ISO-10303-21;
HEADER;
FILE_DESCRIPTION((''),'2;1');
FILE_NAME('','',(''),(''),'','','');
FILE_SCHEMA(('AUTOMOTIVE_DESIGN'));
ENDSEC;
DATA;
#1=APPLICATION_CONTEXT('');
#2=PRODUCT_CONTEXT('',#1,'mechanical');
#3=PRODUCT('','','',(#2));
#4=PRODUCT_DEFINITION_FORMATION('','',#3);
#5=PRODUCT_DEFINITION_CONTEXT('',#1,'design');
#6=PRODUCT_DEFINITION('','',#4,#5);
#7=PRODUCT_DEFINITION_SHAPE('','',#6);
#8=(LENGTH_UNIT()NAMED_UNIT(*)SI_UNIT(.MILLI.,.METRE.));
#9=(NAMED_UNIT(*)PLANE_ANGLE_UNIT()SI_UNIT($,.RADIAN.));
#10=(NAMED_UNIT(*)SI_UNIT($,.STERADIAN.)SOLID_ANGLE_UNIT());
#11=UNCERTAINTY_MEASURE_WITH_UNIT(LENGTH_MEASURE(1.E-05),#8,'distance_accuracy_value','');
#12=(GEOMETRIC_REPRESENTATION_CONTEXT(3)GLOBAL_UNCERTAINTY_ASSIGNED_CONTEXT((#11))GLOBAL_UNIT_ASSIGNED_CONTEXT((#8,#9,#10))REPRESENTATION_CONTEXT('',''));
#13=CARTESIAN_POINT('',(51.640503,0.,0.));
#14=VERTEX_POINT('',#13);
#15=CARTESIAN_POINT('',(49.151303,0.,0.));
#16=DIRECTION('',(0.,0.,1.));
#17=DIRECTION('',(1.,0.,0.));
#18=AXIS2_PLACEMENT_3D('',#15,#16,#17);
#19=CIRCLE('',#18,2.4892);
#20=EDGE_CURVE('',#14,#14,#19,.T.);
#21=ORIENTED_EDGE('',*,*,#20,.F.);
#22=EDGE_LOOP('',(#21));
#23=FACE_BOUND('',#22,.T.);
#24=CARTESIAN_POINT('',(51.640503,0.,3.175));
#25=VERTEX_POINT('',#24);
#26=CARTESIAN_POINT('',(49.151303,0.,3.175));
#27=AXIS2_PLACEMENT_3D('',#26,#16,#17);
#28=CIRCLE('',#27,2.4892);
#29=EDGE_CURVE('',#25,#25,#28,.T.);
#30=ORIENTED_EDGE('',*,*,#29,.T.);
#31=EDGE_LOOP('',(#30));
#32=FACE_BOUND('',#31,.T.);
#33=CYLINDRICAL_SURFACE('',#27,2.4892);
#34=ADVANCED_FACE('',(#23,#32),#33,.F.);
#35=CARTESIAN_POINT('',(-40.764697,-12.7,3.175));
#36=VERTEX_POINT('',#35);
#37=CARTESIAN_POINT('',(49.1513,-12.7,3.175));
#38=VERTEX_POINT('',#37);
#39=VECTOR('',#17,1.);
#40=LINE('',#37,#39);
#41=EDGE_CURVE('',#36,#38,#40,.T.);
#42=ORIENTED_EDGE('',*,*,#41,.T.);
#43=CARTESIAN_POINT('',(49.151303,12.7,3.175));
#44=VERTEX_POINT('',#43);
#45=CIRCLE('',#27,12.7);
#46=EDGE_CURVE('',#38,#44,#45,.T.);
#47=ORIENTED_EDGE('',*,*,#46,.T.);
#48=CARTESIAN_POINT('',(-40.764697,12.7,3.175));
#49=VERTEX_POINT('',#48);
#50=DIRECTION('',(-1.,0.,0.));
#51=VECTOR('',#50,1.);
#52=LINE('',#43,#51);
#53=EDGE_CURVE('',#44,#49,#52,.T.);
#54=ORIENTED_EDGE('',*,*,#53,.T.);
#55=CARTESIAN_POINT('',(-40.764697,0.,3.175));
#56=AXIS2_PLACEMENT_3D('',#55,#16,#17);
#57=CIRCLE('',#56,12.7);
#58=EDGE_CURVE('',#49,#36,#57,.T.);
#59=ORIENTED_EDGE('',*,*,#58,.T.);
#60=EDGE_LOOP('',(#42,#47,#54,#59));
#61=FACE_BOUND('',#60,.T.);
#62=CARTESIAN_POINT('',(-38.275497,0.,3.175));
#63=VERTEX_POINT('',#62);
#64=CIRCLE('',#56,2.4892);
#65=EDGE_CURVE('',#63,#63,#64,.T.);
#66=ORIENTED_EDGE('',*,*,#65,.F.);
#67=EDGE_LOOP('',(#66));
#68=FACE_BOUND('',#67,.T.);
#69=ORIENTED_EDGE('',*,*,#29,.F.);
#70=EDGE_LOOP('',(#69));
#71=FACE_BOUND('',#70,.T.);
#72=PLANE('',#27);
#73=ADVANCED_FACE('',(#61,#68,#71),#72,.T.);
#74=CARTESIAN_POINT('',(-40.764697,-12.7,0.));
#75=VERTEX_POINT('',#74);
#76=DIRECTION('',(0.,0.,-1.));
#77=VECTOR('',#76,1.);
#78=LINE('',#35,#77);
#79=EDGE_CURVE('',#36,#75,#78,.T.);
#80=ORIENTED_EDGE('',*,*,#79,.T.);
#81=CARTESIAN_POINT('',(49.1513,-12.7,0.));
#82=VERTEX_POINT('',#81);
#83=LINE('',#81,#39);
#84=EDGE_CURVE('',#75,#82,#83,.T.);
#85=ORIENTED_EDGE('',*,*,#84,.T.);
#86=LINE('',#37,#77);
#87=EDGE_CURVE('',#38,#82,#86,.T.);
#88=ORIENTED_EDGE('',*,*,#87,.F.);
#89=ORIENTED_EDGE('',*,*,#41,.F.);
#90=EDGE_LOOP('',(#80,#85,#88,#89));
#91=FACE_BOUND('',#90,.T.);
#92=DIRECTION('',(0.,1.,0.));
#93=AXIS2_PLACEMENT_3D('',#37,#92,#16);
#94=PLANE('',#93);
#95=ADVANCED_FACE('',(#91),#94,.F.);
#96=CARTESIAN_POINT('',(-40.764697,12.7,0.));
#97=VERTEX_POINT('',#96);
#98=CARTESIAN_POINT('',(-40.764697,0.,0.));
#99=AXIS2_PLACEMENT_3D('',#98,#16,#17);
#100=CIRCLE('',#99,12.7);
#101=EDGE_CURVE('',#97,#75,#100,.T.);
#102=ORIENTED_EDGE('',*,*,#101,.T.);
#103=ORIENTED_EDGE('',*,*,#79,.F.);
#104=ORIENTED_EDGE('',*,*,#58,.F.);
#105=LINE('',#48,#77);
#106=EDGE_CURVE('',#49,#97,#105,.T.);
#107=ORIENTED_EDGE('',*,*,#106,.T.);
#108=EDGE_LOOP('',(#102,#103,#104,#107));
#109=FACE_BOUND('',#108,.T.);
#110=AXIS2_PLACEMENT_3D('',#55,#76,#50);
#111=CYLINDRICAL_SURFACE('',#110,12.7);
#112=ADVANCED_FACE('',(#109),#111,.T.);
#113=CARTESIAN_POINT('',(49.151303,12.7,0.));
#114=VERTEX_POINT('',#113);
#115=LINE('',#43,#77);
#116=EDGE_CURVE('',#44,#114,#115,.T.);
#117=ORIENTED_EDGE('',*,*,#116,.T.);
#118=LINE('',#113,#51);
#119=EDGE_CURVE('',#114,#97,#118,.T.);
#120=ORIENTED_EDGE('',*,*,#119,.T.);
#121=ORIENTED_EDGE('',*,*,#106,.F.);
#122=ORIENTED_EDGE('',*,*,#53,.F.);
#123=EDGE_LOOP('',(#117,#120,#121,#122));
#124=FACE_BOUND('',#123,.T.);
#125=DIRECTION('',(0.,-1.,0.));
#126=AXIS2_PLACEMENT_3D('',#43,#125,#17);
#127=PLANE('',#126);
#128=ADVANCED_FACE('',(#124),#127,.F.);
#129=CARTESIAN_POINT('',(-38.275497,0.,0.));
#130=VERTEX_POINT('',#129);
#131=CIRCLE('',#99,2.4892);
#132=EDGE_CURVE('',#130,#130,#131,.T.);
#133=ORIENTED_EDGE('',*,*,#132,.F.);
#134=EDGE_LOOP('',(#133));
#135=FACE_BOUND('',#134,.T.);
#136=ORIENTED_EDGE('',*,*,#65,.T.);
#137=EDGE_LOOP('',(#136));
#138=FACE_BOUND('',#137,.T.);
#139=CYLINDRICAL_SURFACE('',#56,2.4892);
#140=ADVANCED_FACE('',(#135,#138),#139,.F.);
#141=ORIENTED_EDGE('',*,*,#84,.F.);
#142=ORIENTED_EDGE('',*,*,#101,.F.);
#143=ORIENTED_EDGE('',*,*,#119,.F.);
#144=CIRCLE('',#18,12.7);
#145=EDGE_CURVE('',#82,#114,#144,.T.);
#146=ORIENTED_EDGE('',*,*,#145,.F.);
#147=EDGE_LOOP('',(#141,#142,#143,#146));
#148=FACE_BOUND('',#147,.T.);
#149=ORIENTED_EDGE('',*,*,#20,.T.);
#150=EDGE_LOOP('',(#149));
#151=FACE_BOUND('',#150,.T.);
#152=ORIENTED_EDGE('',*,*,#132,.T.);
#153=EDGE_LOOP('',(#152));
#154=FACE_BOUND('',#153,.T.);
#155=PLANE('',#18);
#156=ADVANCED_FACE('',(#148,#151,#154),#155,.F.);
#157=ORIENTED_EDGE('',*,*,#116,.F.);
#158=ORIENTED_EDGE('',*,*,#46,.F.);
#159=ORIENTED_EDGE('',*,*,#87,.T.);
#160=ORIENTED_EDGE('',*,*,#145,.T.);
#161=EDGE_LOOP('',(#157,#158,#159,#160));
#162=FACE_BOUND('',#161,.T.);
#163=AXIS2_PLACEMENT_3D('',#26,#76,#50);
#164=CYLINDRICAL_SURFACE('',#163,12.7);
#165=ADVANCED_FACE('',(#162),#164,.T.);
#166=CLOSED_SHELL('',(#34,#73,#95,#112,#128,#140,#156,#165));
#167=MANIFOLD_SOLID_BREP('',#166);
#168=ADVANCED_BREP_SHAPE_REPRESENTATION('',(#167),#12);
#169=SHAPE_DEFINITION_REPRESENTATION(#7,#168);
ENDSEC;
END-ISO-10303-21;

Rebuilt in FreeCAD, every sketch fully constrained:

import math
import FreeCAD as App
import Part
import Sketcher

V = App.Vector
Q = App.Units.Quantity

doc = App.newDocument("Part")
body = doc.addObject("PartDesign::Body", "Body")

# Sketch on XY plane
sketch1 = body.newObject("Sketcher::SketchObject", "Sketch")
sketch1.AttachmentSupport = (doc.getObject("XY_Plane"), [""])
sketch1.MapMode = "FlatFace"
sketch1.addGeometry([
    Part.LineSegment(V(-41, -13, 0), V(49, -13, 0)),
    Part.ArcOfCircle(Part.Circle(V(49, 0, 0), V(0, 0, 1), 13), math.radians(-90), math.radians(90)),
    Part.LineSegment(V(49, 13, 0), V(-41, 13, 0)),
    Part.ArcOfCircle(Part.Circle(V(-41, 0, 0), V(0, 0, 1), 13), math.radians(90), math.radians(270)),
], False)
sketch1.addConstraint([
    Sketcher.Constraint("Tangent", 0, 2, 1, 1),
    Sketcher.Constraint("Tangent", 1, 2, 2, 1),
    Sketcher.Constraint("Tangent", 2, 2, 3, 1),
    Sketcher.Constraint("Tangent", 3, 2, 0, 1),
    Sketcher.Constraint("Horizontal", 0),
    Sketcher.Constraint("Horizontal", 2),
    Sketcher.Constraint("PointOnObject", 1, 3, -1),
    Sketcher.Constraint("Radius", 1, Q("0.5 in")),
    Sketcher.Constraint("DistanceX", 0, 1, 0, 2, Q("3.5399999 in")),
    Sketcher.Constraint("DistanceX", -1, 1, 0, 2, 49.1513),
])
pad1 = body.newObject("PartDesign::Pad", "Pad")
pad1.Profile = sketch1
pad1.Length = Q("0.125 in")

# Sketch on XY plane
sketch2 = body.newObject("Sketcher::SketchObject", "Sketch001")
sketch2.AttachmentSupport = (doc.getObject("XY_Plane"), [""])
sketch2.MapMode = "FlatFace"
sketch2.AttachmentOffset = App.Placement(V(0, 0, 0.125 * 25.4), App.Rotation())
sketch2.addGeometry([
    Part.Circle(V(-40.8, 0, 0), V(0, 0, 1), 2.5),
    Part.Circle(V(49.2, 0, 0), V(0, 0, 1), 2.5),
], False)
sketch2.addConstraint([
    Sketcher.Constraint("Equal", 0, 1),
    Sketcher.Constraint("PointOnObject", 0, 3, -1),
    Sketcher.Constraint("PointOnObject", 1, 3, -1),
    Sketcher.Constraint("Diameter", 0, Q("0.196 in")),
    Sketcher.Constraint("DistanceX", 0, 3, 1, 3, Q("3.54 in")),
    Sketcher.Constraint("DistanceX", 0, 3, -1, 1, 40.764697),
])
doc.recompute()
hole = body.newObject("PartDesign::Hole", "Hole")
hole.Profile = sketch2
hole.ThreadType = "None"
hole.Diameter = Q("0.196 in")
hole.DepthType = "ThroughAll"

doc.recompute()
